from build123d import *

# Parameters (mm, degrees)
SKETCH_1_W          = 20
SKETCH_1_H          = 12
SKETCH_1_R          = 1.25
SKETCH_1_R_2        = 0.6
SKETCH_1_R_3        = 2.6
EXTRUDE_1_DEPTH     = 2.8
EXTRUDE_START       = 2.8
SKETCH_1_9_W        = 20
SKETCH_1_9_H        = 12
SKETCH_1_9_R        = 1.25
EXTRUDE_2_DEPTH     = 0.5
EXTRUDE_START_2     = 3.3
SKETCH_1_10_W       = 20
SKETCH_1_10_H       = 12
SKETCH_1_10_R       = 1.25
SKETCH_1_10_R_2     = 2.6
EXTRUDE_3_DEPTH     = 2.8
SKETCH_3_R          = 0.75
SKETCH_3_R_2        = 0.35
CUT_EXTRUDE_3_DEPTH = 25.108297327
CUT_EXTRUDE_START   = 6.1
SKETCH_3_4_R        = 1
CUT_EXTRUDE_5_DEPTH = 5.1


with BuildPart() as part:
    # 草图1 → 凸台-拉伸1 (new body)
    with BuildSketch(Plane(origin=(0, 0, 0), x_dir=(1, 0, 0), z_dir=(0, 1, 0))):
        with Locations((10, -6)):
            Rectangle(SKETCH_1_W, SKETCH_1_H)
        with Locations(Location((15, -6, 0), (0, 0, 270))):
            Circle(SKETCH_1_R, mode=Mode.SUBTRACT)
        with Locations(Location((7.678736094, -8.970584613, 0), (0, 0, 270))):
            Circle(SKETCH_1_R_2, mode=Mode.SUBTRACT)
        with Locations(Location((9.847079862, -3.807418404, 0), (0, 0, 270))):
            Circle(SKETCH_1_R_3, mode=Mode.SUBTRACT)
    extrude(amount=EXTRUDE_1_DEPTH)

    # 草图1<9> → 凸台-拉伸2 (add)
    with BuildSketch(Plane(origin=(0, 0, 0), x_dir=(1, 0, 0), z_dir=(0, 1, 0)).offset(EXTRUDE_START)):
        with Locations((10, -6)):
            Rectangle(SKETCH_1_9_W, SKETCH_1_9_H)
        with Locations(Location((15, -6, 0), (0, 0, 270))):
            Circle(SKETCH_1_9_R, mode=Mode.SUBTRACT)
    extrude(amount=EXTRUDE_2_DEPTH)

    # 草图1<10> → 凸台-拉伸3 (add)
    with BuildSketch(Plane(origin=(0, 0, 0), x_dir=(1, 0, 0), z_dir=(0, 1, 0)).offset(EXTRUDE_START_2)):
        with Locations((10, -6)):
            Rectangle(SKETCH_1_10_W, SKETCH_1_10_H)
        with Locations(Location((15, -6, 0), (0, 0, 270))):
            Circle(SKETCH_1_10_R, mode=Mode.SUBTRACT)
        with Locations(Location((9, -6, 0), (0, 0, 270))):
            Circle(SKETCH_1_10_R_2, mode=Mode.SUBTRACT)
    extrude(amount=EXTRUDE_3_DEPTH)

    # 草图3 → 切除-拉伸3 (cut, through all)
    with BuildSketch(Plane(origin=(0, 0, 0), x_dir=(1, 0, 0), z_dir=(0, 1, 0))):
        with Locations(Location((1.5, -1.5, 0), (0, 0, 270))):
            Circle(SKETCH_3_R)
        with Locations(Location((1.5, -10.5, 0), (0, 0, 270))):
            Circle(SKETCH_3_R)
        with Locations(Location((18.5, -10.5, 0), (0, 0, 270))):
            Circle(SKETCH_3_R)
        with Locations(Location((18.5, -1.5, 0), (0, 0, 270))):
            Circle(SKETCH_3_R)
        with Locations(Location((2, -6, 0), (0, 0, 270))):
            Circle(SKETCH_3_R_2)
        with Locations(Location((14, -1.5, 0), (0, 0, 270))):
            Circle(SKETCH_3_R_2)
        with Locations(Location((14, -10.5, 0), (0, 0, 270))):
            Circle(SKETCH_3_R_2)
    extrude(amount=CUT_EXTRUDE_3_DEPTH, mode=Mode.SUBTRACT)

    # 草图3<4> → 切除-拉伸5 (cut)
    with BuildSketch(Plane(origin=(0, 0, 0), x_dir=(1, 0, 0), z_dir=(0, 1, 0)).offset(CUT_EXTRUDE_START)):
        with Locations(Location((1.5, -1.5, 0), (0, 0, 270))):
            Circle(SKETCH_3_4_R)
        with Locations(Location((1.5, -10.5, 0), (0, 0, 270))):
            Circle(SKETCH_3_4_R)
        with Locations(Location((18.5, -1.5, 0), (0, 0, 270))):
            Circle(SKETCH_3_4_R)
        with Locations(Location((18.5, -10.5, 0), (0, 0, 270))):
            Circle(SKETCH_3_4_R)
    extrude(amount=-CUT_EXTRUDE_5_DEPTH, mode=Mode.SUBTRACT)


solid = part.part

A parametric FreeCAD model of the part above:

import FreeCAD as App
import Part
import Sketcher

doc = App.newDocument("Part")
params = doc.addObject("Spreadsheet::Sheet", "Params")
for row, (alias, value) in enumerate([
    ("sketch1_diameter", "1.2 mm"),
    ("sketch1_diameter2", "2.5 mm"),
    ("sketch1_diameter3", "5.2 mm"),
    ("sketch1_width", "20 mm"),
    ("sketch1_height", "12 mm"),
    ("pad1_length", "2.8 mm"),
    ("sketch2_diameter", "2.5 mm"),
    ("sketch2_width", "20 mm"),
    ("sketch2_height", "12 mm"),
    ("pad2_length", "0.5 mm"),
    ("sketch3_diameter", "5.2 mm"),
    ("sketch3_diameter2", "2.5 mm"),
    ("sketch3_width", "20 mm"),
    ("sketch3_height", "12 mm"),
    ("pad3_length", "2.8 mm"),
    ("sketch4_diameter", "1.5 mm"),
    ("sketch4_diameter2", "0.7 mm"),
    ("sketch5_diameter", "2 mm"),
    ("pocket2_length", "5.1 mm"),
], start=1):
    params.set(f"A{row}", alias)
    params.set(f"B{row}", "=" + value)
    params.setAlias(f"B{row}", alias)

body = doc.addObject("PartDesign::Body", "Body")

sketch1 = body.newObject("Sketcher::SketchObject", "Sketch")
sketch1.AttachmentSupport = (doc.getObject("XZ_Plane"), [""])
sketch1.MapMode = "FlatFace"
sketch1.addGeometry([
    Part.LineSegment(App.Vector(0, 0, 0), App.Vector(0, 12, 0)),
    Part.LineSegment(App.Vector(0, 12, 0), App.Vector(20, 12, 0)),
    Part.LineSegment(App.Vector(20, 12, 0), App.Vector(20, 0, 0)),
    Part.LineSegment(App.Vector(20, 0, 0), App.Vector(0, 0, 0)),
    Part.Circle(App.Vector(7.7, 9, 0), App.Vector(0, 0, 1), 0.6),
    Part.Circle(App.Vector(15, 6, 0), App.Vector(0, 0, 1), 1.2),
    Part.Circle(App.Vector(9.8, 3.8, 0), App.Vector(0, 0, 1), 2.6),
], False)
sketch1.addConstraint([
    Sketcher.Constraint("Coincident", 0, 2, 1, 1),
    Sketcher.Constraint("Coincident", 1, 2, 2, 1),
    Sketcher.Constraint("Coincident", 2, 2, 3, 1),
    Sketcher.Constraint("Coincident", 3, 2, 0, 1),
    Sketcher.Constraint("Vertical", 0),
    Sketcher.Constraint("Horizontal", 1),
    Sketcher.Constraint("Vertical", 2),
    Sketcher.Constraint("Horizontal", 3),
    Sketcher.Constraint("Coincident", 3, 2, -1, 1),
    Sketcher.Constraint("Diameter", 4, 1.2),
    Sketcher.Constraint("Diameter", 5, 2.5),
    Sketcher.Constraint("Diameter", 6, 5.2),
    Sketcher.Constraint("DistanceX", 1, 1, 1, 2, 20.0),
    Sketcher.Constraint("DistanceY", 0, 1, 0, 2, 12.0),
    Sketcher.Constraint("DistanceX", -1, 1, 5, 3, 15.0),
    Sketcher.Constraint("DistanceY", -1, 1, 5, 3, 6.0),
    Sketcher.Constraint("DistanceX", -1, 1, 6, 3, 9.84708),
    Sketcher.Constraint("DistanceY", -1, 1, 6, 3, 3.807418),
    Sketcher.Constraint("DistanceX", -1, 1, 4, 3, 7.678736),
    Sketcher.Constraint("DistanceY", -1, 1, 4, 3, 8.970585),
])
sketch1.setExpression("Constraints[9]", "Params.sketch1_diameter")
sketch1.setExpression("Constraints[10]", "Params.sketch1_diameter2")
sketch1.setExpression("Constraints[11]", "Params.sketch1_diameter3")
sketch1.setExpression("Constraints[12]", "Params.sketch1_width")
sketch1.setExpression("Constraints[13]", "Params.sketch1_height")
pad1 = body.newObject("PartDesign::Pad", "Pad")
pad1.Profile = sketch1
pad1.setExpression("Length", "Params.pad1_length")
pad1.Reversed = True

sketch2 = body.newObject("Sketcher::SketchObject", "Sketch001")
sketch2.AttachmentSupport = (doc.getObject("XZ_Plane"), [""])
sketch2.MapMode = "FlatFace"
sketch2.AttachmentOffset = App.Placement(App.Vector(0, 0, -2.8), App.Rotation())
sketch2.addGeometry([
    Part.LineSegment(App.Vector(0, 0, 0), App.Vector(0, 12, 0)),
    Part.LineSegment(App.Vector(0, 12, 0), App.Vector(20, 12, 0)),
    Part.LineSegment(App.Vector(20, 12, 0), App.Vector(20, 0, 0)),
    Part.LineSegment(App.Vector(20, 0, 0), App.Vector(0, 0, 0)),
    Part.Circle(App.Vector(15, 6, 0), App.Vector(0, 0, 1), 1.2),
], False)
sketch2.addConstraint([
    Sketcher.Constraint("Coincident", 0, 2, 1, 1),
    Sketcher.Constraint("Coincident", 1, 2, 2, 1),
    Sketcher.Constraint("Coincident", 2, 2, 3, 1),
    Sketcher.Constraint("Coincident", 3, 2, 0, 1),
    Sketcher.Constraint("Vertical", 0),
    Sketcher.Constraint("Horizontal", 1),
    Sketcher.Constraint("Vertical", 2),
    Sketcher.Constraint("Horizontal", 3),
    Sketcher.Constraint("Coincident", 3, 2, -1, 1),
    Sketcher.Constraint("Diameter", 4, 2.5),
    Sketcher.Constraint("DistanceX", 1, 1, 1, 2, 20.0),
    Sketcher.Constraint("DistanceY", 0, 1, 0, 2, 12.0),
    Sketcher.Constraint("DistanceX", -1, 1, 4, 3, 15.0),
    Sketcher.Constraint("DistanceY", -1, 1, 4, 3, 6.0),
])
sketch2.setExpression("Constraints[9]", "Params.sketch2_diameter")
sketch2.setExpression("Constraints[10]", "Params.sketch2_width")
sketch2.setExpression("Constraints[11]", "Params.sketch2_height")
pad2 = body.newObject("PartDesign::Pad", "Pad001")
pad2.Profile = sketch2
pad2.setExpression("Length", "Params.pad2_length")
pad2.Reversed = True

sketch3 = body.newObject("Sketcher::SketchObject", "Sketch002")
sketch3.AttachmentSupport = (doc.getObject("XZ_Plane"), [""])
sketch3.MapMode = "FlatFace"
sketch3.AttachmentOffset = App.Placement(App.Vector(0, 0, -3.3), App.Rotation())
sketch3.addGeometry([
    Part.LineSegment(App.Vector(0, 0, 0), App.Vector(0, 12, 0)),
    Part.LineSegment(App.Vector(0, 12, 0), App.Vector(20, 12, 0)),
    Part.LineSegment(App.Vector(20, 12, 0), App.Vector(20, 0, 0)),
    Part.LineSegment(App.Vector(20, 0, 0), App.Vector(0, 0, 0)),
    Part.Circle(App.Vector(9, 6, 0), App.Vector(0, 0, 1), 2.6),
    Part.Circle(App.Vector(15, 6, 0), App.Vector(0, 0, 1), 1.2),
], False)
sketch3.addConstraint([
    Sketcher.Constraint("Coincident", 0, 2, 1, 1),
    Sketcher.Constraint("Coincident", 1, 2, 2, 1),
    Sketcher.Constraint("Coincident", 2, 2, 3, 1),
    Sketcher.Constraint("Coincident", 3, 2, 0, 1),
    Sketcher.Constraint("Vertical", 0),
    Sketcher.Constraint("Horizontal", 1),
    Sketcher.Constraint("Vertical", 2),
    Sketcher.Constraint("Horizontal", 3),
    Sketcher.Constraint("Coincident", 3, 2, -1, 1),
    Sketcher.Constraint("Horizontal", 4, 3, 5, 3),
    Sketcher.Constraint("Diameter", 4, 5.2),
    Sketcher.Constraint("Diameter", 5, 2.5),
    Sketcher.Constraint("DistanceX", 1, 1, 1, 2, 20.0),
    Sketcher.Constraint("DistanceY", 0, 1, 0, 2, 12.0),
    Sketcher.Constraint("DistanceX", -1, 1, 4, 3, 9.0),
    Sketcher.Constraint("DistanceY", -1, 1, 4, 3, 6.0),
    Sketcher.Constraint("DistanceX", -1, 1, 5, 3, 15.0),
])
sketch3.setExpression("Constraints[10]", "Params.sketch3_diameter")
sketch3.setExpression("Constraints[11]", "Params.sketch3_diameter2")
sketch3.setExpression("Constraints[12]", "Params.sketch3_width")
sketch3.setExpression("Constraints[13]", "Params.sketch3_height")
pad3 = body.newObject("PartDesign::Pad", "Pad002")
pad3.Profile = sketch3
pad3.setExpression("Length", "Params.pad3_length")
pad3.Reversed = True

sketch4 = body.newObject("Sketcher::SketchObject", "Sketch003")
sketch4.AttachmentSupport = (doc.getObject("XZ_Plane"), [""])
sketch4.MapMode = "FlatFace"
sketch4.addGeometry([
    Part.Circle(App.Vector(1.5, 1.5, 0), App.Vector(0, 0, 1), 0.75),
    Part.Circle(App.Vector(1.5, 10.5, 0), App.Vector(0, 0, 1), 0.75),
    Part.Circle(App.Vector(18.5, 10.5, 0), App.Vector(0, 0, 1), 0.75),
    Part.Circle(App.Vector(18.5, 1.5, 0), App.Vector(0, 0, 1), 0.75),
    Part.Circle(App.Vector(2, 6, 0), App.Vector(0, 0, 1), 0.35),
    Part.Circle(App.Vector(14, 1.5, 0), App.Vector(0, 0, 1), 0.35),
    Part.Circle(App.Vector(14, 10.5, 0), App.Vector(0, 0, 1), 0.35),
], False)
sketch4.addConstraint([
    Sketcher.Constraint("Equal", 0, 1),
    Sketcher.Constraint("Equal", 1, 2),
    Sketcher.Constraint("Equal", 2, 3),
    Sketcher.Constraint("Equal", 4, 5),
    Sketcher.Constraint("Equal", 5, 6),
    Sketcher.Constraint("Horizontal", 1, 3, 2, 3),
    Sketcher.Constraint("Horizontal", 0, 3, 3, 3),
    Sketcher.Constraint("Horizontal", 3, 3, 5, 3),
    Sketcher.Constraint("Horizontal", 2, 3, 6, 3),
    Sketcher.Constraint("Vertical", 0, 3, 1, 3),
    Sketcher.Constraint("Vertical", 2, 3, 3, 3),
    Sketcher.Constraint("Vertical", 5, 3, 6, 3),
    Sketcher.Constraint("Diameter", 0, 1.5),
    Sketcher.Constraint("Diameter", 4, 0.7),
    Sketcher.Constraint("DistanceX", -1, 1, 4, 3, 2.0),
    Sketcher.Constraint("DistanceY", -1, 1, 4, 3, 6.0),
    Sketcher.Constraint("DistanceX", -1, 1, 5, 3, 14.0),
    Sketcher.Constraint("DistanceY", 0, 3, 1, 3, 9.0),
    Sketcher.Constraint("DistanceX", 1, 3, 2, 3, 17.0),
    Sketcher.Constraint("DistanceX", -1, 1, 0, 3, 1.5),
    Sketcher.Constraint("DistanceY", -1, 1, 0, 3, 1.5),
])
sketch4.setExpression("Constraints[12]", "Params.sketch4_diameter")
sketch4.setExpression("Constraints[13]", "Params.sketch4_diameter2")
pocket1 = body.newObject("PartDesign::Pocket", "Pocket")
pocket1.Profile = sketch4
pocket1.Type = "ThroughAll"

sketch5 = body.newObject("Sketcher::SketchObject", "Sketch004")
sketch5.AttachmentSupport = (doc.getObject("XZ_Plane"), [""])
sketch5.MapMode = "FlatFace"
sketch5.AttachmentOffset = App.Placement(App.Vector(0, 0, -6.1), App.Rotation())
sketch5.addGeometry([
    Part.Circle(App.Vector(1.5, 1.5, 0), App.Vector(0, 0, 1), 1),
    Part.Circle(App.Vector(1.5, 10.5, 0), App.Vector(0, 0, 1), 1),
    Part.Circle(App.Vector(18.5, 1.5, 0), App.Vector(0, 0, 1), 1),
    Part.Circle(App.Vector(18.5, 10.5, 0), App.Vector(0, 0, 1), 1),
], False)
sketch5.addConstraint([
    Sketcher.Constraint("Equal", 0, 1),
    Sketcher.Constraint("Equal", 1, 2),
    Sketcher.Constraint("Equal", 2, 3),
    Sketcher.Constraint("Horizontal", 0, 3, 2, 3),
    Sketcher.Constraint("Horizontal", 1, 3, 3, 3),
    Sketcher.Constraint("Vertical", 0, 3, 1, 3),
    Sketcher.Constraint("Vertical", 2, 3, 3, 3),
    Sketcher.Constraint("Diameter", 0, 2.0),
    Sketcher.Constraint("DistanceY", 0, 3, 1, 3, 9.0),
    Sketcher.Constraint("DistanceX", 0, 3, 2, 3, 17.0),
    Sketcher.Constraint("DistanceX", -1, 1, 0, 3, 1.5),
    Sketcher.Constraint("DistanceY", -1, 1, 0, 3, 1.5),
])
sketch5.setExpression("Constraints[7]", "Params.sketch5_diameter")
pocket2 = body.newObject("PartDesign::Pocket", "Pocket001")
pocket2.Profile = sketch5
pocket2.setExpression("Length", "Params.pocket2_length")
pocket2.Reversed = True

doc.recompute()
